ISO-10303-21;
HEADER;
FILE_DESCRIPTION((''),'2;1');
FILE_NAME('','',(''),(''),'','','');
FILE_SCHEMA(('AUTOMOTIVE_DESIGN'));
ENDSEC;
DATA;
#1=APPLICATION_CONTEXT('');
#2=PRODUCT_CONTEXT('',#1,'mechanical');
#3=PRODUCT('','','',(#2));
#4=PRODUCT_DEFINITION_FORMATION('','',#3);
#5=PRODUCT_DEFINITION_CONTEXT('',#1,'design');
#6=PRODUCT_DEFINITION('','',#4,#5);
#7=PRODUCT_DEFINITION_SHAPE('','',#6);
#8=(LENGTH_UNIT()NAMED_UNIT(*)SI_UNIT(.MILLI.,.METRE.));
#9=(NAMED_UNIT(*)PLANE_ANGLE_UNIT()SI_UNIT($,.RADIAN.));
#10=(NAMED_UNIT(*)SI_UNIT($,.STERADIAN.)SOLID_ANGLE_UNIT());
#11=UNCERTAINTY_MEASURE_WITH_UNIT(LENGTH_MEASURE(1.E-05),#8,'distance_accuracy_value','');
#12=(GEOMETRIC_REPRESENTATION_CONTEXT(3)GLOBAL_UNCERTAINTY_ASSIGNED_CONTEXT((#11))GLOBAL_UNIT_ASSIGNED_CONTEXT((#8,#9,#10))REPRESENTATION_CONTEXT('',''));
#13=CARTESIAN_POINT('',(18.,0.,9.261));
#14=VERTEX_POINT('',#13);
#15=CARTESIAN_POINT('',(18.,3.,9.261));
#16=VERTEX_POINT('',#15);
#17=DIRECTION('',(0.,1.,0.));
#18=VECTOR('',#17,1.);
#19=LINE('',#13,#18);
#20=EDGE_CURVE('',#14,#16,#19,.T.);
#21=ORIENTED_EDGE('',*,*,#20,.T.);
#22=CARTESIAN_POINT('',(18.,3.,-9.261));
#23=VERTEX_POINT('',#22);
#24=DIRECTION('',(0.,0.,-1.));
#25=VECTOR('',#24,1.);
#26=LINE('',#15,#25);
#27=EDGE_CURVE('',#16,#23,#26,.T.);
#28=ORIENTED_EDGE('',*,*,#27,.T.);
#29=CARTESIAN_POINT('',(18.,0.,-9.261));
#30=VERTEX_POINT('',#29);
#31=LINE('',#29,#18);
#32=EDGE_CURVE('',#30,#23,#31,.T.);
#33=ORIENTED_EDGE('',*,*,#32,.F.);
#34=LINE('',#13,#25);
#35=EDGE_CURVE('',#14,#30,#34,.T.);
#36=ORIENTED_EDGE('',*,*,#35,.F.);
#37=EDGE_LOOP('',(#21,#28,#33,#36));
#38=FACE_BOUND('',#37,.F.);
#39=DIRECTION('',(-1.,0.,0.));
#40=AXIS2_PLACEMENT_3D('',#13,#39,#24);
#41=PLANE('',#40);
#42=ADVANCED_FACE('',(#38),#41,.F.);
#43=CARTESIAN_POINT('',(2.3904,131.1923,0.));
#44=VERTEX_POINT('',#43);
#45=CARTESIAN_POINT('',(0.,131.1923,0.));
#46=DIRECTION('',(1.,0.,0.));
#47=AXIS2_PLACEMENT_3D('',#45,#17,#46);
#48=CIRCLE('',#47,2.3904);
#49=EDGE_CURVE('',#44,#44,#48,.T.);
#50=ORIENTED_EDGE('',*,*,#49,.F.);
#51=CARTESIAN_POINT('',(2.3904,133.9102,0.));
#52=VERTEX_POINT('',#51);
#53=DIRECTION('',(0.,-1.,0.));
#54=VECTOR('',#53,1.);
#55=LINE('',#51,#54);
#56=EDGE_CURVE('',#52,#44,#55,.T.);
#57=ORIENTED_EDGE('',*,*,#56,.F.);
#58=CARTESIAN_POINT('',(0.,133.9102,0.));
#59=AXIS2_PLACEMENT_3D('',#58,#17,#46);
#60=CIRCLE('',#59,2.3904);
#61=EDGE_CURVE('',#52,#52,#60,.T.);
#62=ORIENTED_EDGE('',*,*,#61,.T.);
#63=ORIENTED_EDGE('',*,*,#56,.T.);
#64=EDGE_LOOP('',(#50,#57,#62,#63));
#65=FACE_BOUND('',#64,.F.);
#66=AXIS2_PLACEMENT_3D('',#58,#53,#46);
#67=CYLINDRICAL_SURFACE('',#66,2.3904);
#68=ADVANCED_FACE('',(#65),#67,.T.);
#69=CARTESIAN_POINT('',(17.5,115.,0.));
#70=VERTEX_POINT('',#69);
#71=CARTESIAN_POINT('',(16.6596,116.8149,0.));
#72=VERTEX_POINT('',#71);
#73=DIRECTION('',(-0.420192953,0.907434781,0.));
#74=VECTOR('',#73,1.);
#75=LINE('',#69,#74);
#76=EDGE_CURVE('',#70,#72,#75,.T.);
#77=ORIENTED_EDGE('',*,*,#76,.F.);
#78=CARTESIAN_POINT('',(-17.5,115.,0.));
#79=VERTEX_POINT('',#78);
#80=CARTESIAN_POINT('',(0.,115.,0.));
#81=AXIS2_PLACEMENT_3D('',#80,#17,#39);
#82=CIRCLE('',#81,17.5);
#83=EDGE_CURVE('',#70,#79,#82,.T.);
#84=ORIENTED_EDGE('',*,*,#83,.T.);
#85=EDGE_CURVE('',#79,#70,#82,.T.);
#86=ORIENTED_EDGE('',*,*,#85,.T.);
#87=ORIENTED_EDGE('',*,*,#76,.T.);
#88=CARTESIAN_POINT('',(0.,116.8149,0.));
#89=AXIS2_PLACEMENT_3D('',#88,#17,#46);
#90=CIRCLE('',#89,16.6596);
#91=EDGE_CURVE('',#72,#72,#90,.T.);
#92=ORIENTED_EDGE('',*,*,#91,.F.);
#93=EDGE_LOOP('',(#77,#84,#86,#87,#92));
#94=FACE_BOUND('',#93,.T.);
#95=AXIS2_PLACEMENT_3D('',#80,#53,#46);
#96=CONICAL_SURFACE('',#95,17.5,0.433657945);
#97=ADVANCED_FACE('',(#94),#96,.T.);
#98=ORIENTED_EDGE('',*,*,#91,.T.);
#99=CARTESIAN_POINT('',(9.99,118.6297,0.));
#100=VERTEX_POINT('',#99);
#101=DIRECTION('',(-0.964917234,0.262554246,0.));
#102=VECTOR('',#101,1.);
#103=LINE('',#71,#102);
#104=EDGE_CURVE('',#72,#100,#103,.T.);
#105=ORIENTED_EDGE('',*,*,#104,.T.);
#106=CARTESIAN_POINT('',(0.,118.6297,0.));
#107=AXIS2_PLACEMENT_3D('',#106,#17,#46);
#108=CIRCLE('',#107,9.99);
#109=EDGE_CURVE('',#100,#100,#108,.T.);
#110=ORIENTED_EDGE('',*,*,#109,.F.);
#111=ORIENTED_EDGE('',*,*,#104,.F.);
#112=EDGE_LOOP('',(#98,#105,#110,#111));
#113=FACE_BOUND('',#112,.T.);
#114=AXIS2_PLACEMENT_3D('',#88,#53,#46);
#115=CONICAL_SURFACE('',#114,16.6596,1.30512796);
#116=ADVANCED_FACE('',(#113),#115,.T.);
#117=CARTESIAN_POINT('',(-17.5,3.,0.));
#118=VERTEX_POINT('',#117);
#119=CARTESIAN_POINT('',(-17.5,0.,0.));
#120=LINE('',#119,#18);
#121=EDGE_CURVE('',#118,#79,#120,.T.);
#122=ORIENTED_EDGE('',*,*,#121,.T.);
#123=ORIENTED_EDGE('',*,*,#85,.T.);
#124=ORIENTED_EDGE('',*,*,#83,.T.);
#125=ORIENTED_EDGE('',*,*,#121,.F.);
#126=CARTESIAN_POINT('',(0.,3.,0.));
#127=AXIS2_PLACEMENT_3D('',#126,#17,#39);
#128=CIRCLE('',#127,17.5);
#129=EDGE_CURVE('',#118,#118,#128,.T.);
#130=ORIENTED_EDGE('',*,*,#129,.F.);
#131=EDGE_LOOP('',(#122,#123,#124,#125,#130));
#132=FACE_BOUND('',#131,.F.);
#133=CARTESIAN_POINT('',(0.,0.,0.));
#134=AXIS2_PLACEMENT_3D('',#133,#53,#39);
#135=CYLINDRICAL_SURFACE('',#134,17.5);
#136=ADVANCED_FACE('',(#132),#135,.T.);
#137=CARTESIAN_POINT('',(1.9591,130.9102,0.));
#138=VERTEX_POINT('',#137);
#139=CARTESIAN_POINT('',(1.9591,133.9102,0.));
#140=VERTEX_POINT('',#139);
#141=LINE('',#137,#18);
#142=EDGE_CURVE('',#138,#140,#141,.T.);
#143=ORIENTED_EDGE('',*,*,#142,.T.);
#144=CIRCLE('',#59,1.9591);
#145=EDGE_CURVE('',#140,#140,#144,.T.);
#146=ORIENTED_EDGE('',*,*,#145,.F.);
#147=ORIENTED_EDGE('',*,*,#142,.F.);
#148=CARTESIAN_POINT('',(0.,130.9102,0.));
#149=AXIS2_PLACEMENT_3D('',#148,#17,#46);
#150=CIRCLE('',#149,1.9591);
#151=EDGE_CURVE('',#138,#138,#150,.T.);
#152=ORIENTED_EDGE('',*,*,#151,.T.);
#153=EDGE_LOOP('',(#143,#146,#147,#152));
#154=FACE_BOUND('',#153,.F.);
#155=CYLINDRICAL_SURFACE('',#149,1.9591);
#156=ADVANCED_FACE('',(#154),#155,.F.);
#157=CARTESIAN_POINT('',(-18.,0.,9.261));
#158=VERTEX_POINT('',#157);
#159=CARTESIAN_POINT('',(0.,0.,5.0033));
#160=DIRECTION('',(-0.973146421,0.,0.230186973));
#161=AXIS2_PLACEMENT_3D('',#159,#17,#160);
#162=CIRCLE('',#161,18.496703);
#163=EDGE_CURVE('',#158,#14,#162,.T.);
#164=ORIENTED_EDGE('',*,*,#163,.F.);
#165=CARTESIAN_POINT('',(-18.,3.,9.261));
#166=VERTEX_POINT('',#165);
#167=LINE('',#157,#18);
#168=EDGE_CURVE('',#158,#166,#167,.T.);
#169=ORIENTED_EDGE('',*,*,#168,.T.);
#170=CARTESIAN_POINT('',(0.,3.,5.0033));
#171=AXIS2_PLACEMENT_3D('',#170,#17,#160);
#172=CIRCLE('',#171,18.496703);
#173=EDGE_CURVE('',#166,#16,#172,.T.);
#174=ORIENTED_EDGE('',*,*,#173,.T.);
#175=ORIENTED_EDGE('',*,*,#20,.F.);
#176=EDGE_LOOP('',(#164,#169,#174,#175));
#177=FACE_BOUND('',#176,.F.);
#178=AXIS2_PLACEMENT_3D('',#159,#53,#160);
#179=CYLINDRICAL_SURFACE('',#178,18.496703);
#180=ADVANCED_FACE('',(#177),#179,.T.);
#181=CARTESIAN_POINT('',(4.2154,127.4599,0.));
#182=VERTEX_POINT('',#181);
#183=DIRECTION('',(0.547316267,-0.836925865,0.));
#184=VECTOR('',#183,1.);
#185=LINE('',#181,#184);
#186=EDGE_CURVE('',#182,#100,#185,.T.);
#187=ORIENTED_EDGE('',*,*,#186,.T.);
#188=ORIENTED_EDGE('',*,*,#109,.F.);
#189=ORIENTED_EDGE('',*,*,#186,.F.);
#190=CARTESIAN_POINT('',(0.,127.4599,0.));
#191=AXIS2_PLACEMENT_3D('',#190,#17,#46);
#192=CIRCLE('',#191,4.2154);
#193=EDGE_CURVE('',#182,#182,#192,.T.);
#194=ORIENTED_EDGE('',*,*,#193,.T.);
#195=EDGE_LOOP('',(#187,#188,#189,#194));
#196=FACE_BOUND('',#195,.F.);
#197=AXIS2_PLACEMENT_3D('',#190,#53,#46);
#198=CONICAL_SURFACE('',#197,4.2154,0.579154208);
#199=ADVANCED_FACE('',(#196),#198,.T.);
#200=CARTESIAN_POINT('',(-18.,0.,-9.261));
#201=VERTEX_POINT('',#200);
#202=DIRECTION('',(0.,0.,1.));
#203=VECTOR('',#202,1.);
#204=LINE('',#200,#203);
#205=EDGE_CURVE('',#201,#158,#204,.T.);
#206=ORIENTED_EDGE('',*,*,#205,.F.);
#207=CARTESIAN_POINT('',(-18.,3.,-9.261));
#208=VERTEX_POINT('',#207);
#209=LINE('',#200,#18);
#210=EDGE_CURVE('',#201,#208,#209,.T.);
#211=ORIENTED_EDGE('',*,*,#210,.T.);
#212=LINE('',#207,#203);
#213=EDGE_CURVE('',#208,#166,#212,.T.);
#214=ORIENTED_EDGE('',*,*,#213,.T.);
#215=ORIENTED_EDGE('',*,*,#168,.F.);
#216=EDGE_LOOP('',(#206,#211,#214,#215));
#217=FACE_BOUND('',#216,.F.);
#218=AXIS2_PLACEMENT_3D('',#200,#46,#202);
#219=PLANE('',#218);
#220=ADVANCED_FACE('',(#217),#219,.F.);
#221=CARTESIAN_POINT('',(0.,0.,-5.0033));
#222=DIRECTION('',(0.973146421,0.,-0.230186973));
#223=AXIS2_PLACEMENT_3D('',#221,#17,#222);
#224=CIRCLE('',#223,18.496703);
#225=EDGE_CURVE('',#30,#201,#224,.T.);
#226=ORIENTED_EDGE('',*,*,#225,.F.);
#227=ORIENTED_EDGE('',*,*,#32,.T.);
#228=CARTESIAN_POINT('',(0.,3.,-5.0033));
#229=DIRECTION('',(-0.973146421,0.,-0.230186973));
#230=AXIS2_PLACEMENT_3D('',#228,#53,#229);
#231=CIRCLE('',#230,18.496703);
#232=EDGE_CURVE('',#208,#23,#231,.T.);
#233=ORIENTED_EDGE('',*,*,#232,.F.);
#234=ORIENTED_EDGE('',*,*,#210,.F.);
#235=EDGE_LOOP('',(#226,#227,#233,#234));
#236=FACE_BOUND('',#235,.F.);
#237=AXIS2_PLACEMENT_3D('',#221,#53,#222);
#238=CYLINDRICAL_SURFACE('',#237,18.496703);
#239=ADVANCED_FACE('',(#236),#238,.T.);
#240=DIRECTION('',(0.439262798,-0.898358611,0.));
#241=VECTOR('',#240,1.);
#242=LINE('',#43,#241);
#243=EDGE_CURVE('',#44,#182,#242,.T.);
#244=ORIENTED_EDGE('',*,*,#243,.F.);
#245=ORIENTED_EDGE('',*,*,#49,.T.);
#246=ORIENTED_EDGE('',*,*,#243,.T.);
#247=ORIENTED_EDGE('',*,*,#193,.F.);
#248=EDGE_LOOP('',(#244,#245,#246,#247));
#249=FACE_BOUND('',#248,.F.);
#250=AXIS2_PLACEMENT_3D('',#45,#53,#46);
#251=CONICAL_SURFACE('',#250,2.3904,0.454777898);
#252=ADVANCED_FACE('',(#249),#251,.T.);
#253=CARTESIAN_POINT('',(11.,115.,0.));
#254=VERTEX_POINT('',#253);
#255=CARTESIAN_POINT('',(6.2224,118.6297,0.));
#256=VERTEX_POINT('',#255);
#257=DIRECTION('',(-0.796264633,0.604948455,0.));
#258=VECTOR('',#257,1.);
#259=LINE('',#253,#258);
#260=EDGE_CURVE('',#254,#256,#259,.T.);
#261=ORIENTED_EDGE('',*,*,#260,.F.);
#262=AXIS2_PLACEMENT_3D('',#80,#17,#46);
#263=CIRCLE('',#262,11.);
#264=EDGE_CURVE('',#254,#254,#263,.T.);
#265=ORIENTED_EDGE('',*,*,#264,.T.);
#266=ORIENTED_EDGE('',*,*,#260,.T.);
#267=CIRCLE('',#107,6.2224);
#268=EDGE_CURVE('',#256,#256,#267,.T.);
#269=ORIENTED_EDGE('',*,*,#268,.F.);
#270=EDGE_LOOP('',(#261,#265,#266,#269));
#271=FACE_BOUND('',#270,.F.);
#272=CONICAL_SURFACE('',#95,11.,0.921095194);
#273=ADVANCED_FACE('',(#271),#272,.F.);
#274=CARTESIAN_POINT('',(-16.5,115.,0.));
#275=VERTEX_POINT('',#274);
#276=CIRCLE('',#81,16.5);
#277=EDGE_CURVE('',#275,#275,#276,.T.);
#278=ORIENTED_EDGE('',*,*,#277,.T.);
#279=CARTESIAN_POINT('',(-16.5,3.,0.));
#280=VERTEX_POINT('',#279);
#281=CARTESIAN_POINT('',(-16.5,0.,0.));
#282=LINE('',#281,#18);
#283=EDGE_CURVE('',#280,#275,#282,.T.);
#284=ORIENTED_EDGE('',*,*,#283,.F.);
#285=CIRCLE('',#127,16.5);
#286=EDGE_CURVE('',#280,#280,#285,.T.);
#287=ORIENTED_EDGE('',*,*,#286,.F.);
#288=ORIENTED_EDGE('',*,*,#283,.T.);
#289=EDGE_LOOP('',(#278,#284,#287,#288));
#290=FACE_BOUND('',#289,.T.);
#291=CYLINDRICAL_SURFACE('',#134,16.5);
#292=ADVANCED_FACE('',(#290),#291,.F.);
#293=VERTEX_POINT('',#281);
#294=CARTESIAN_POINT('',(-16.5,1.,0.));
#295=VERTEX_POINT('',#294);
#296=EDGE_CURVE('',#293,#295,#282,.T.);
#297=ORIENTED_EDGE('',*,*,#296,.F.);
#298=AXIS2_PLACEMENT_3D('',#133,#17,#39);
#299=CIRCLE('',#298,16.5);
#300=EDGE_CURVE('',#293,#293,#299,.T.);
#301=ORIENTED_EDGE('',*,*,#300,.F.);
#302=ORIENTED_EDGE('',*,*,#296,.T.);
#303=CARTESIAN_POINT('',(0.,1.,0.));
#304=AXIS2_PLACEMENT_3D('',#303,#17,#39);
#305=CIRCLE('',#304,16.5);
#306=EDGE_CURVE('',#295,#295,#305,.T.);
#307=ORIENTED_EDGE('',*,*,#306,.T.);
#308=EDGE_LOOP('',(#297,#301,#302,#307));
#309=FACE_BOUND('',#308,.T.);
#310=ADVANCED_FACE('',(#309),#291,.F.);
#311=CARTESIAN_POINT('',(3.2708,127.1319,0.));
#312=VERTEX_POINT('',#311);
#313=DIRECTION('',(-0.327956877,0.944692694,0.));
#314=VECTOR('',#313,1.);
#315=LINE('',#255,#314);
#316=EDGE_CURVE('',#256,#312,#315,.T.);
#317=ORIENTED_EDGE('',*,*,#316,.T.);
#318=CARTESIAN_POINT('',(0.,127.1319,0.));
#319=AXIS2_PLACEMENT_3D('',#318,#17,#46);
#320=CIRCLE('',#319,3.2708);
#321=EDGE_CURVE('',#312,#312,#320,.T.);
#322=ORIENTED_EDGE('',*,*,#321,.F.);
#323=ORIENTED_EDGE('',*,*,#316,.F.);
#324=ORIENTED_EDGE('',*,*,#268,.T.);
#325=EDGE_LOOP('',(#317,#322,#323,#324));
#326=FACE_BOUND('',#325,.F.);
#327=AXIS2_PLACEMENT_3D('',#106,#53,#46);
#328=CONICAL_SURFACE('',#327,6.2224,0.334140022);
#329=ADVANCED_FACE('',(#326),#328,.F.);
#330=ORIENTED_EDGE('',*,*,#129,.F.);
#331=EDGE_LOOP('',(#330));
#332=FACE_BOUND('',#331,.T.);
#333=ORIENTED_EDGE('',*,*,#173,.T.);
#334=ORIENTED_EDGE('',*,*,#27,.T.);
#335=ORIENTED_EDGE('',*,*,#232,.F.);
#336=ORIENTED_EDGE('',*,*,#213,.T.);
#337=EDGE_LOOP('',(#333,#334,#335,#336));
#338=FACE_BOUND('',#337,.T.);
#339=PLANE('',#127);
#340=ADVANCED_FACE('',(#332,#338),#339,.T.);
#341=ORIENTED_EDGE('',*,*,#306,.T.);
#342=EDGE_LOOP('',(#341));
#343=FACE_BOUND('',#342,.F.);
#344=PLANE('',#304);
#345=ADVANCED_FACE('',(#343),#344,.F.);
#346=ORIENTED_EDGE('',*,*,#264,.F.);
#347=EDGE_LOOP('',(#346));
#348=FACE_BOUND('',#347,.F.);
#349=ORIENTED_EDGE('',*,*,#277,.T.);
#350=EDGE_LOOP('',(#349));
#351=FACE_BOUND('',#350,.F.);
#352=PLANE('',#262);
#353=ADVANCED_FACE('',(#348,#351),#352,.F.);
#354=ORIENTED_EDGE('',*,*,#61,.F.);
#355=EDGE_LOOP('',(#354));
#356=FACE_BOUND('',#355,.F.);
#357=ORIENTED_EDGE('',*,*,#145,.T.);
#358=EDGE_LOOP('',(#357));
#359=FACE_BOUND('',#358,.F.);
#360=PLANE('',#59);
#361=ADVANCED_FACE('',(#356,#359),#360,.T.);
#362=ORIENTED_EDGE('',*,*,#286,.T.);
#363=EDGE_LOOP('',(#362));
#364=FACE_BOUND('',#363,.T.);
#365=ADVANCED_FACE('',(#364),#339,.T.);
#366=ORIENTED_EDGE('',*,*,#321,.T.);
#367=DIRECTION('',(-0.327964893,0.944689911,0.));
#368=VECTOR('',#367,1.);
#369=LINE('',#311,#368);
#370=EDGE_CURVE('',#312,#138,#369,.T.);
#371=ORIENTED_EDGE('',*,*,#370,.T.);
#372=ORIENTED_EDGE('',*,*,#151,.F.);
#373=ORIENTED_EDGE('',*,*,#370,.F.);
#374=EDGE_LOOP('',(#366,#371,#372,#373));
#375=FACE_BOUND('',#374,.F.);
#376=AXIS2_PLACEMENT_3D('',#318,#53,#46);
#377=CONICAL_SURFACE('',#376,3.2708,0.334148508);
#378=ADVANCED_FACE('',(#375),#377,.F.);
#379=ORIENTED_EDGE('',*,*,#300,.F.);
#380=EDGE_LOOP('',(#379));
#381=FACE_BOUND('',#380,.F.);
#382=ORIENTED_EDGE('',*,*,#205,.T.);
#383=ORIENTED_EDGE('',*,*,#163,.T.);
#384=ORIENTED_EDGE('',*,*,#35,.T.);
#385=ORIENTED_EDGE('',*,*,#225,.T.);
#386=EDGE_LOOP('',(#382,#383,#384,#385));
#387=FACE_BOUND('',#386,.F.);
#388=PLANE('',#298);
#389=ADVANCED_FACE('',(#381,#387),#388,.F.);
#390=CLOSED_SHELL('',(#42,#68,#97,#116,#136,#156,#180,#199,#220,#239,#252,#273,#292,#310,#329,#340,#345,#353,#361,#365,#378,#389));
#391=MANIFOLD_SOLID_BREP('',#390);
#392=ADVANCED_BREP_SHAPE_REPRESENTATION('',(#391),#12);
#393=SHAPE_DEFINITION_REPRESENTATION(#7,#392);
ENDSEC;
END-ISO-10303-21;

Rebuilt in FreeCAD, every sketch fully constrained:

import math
import FreeCAD as App
import Part
import Sketcher


def add_polygon(sketch, points):
    """Adds a closed chain of lines whose ends are joined by coincident constraints."""
    first, n = sketch.GeometryCount, len(points)
    for a, b in zip(points, points[1:] + points[:1]):
        sketch.addGeometry(Part.LineSegment(App.Vector(*a, 0), App.Vector(*b, 0)), False)
    for i in range(n):
        sketch.addConstraint(Sketcher.Constraint("Coincident", first + i, 2, first + (i + 1) % n, 1))

doc = App.newDocument("Part")
body = doc.addObject("PartDesign::Body", "Body")

sketch1 = body.newObject("Sketcher::SketchObject", "Sketch")
sketch1.AttachmentSupport = (doc.getObject("XZ_Plane"), [""])
sketch1.MapMode = "FlatFace"
sketch1.addGeometry(Part.Circle(App.Vector(0, 0, 0), App.Vector(0, 0, 1), 17.5), False)
sketch1.addGeometry(Part.Circle(App.Vector(0, 0, 0), App.Vector(0, 0, 1), 16.5), False)
sketch1.addConstraint(Sketcher.Constraint("Coincident", 0, 3, -1, 1))
sketch1.addConstraint(Sketcher.Constraint("Coincident", 1, 3, -1, 1))
sketch1.addConstraint(Sketcher.Constraint("Diameter", 1, 33.0))
sketch1.addConstraint(Sketcher.Constraint("Diameter", 0, 35.0))
pad1 = body.newObject("PartDesign::Pad", "Pad")
pad1.Profile = sketch1
pad1.Length = 115
pad1.Reversed = True

sketch2 = body.newObject("Sketcher::SketchObject", "Sketch001")
sketch2.AttachmentSupport = (doc.getObject("XZ_Plane"), [""])
sketch2.MapMode = "FlatFace"
sketch2.addGeometry(Part.Circle(App.Vector(0, 0, 0), App.Vector(0, 0, 1), 16.5), False)
sketch2.addGeometry(Part.ArcOfCircle(Part.Circle(App.Vector(0, -5.0033, 0), App.Vector(0, 0, 1), 18.496703), math.radians(-166.69192), math.radians(-13.30808)), False)
sketch2.addGeometry(Part.LineSegment(App.Vector(-18, -9.261, 0), App.Vector(-18, 9.261, 0)), False)
sketch2.addGeometry(Part.ArcOfCircle(Part.Circle(App.Vector(0, 5.0033, 0), App.Vector(0, 0, 1), 18.496703), math.radians(13.30808), math.radians(166.69192)), False)
sketch2.addGeometry(Part.LineSegment(App.Vector(18, 9.261, 0), App.Vector(18, -9.261, 0)), False)
sketch2.addGeometry(Part.Circle(App.Vector(0, 0, 0), App.Vector(0, 0, 1), 17.5), False)
sketch2.addConstraint(Sketcher.Constraint("Coincident", 1, 1, 2, 1))
sketch2.addConstraint(Sketcher.Constraint("Coincident", 2, 2, 3, 2))
sketch2.addConstraint(Sketcher.Constraint("Coincident", 3, 1, 4, 1))
sketch2.addConstraint(Sketcher.Constraint("Coincident", 4, 2, 1, 2))
sketch2.addConstraint(Sketcher.Constraint("Vertical", 2))
sketch2.addConstraint(Sketcher.Constraint("Vertical", 4))
sketch2.addConstraint(Sketcher.Constraint("Coincident", 0, 3, -1, 1))
sketch2.addConstraint(Sketcher.Constraint("Coincident", 5, 3, -1, 1))
sketch2.addConstraint(Sketcher.Constraint("Equal", 1, 3))
sketch2.addConstraint(Sketcher.Constraint("Symmetric", 1, 3, 3, 3, -1, 1))
sketch2.addConstraint(Sketcher.Constraint("Symmetric", 2, 2, 3, 1, -2))
sketch2.addConstraint(Sketcher.Constraint("Diameter", 0, 33.0))
sketch2.addConstraint(Sketcher.Constraint("Diameter", 5, 35.0))
sketch2.addConstraint(Sketcher.Constraint("DistanceX", 2, 2, 3, 1, 36.0))
sketch2.addConstraint(Sketcher.Constraint("Radius", 1, 18.4967))
sketch2.addConstraint(Sketcher.Constraint("DistanceY", 2, 1, 2, 2, 18.522))
pad2 = body.newObject("PartDesign::Pad", "Pad001")
pad2.Profile = sketch2
pad2.Length = 3
pad2.Reversed = True

sketch3 = body.newObject("Sketcher::SketchObject", "Sketch002")
sketch3.AttachmentSupport = (doc.getObject("XY_Plane"), [""])
sketch3.MapMode = "FlatFace"
add_polygon(sketch3, [(11, 115), (17.5, 115), (16.6596, 116.8149), (9.99, 118.6297), (4.2154, 127.4599), (2.3904, 131.1923), (2.3904, 133.9102), (1.9591, 133.9102), (1.9591, 130.9102), (3.2708, 127.1319), (6.2224, 118.6297)])
sketch3.addConstraint(Sketcher.Constraint("Horizontal", 0))
sketch3.addConstraint(Sketcher.Constraint("Vertical", 5))
sketch3.addConstraint(Sketcher.Constraint("Horizontal", 6))
sketch3.addConstraint(Sketcher.Constraint("Vertical", 7))
sketch3.addConstraint(Sketcher.Constraint("DistanceY", 7, 2, 7, 1, 3.0))
sketch3.addConstraint(Sketcher.Constraint("Distance", 1, 2.0))
sketch3.addConstraint(Sketcher.Constraint("Distance", 9, 9.0))
sketch3.addConstraint(Sketcher.Constraint("Distance", 10, 6.0))
sketch3.addConstraint(Sketcher.Constraint("DistanceX", 0, 1, 0, 2, 6.5))
sketch3.addConstraint(Sketcher.Constraint("DistanceY", -1, 1, 0, 2, 115.0))
sketch3.addConstraint(Sketcher.Constraint("DistanceX", -1, 1, 10, 2, 11.0))
sketch3.addConstraint(Sketcher.Constraint("DistanceY", 5, 1, 5, 2, 2.718))
sketch3.addConstraint(Sketcher.Constraint("DistanceX", -1, 1, 2, 2, 9.99))
sketch3.addConstraint(Sketcher.Constraint("DistanceY", -1, 1, 3, 2, 127.46))
sketch3.addConstraint(Sketcher.Constraint("Distance", 2, 6.912))
sketch3.addConstraint(Sketcher.Constraint("DistanceX", 6, 2, 6, 1, 0.4313))
sketch3.addConstraint(Sketcher.Constraint("DistanceY", -1, 1, 1, 2, 116.815))
sketch3.addConstraint(Sketcher.Constraint("DistanceX", -1, 1, 6, 2, 1.959))
sketch3.addConstraint(Sketcher.Constraint("DistanceY", -1, 1, 8, 2, 127.132))
sketch3.addConstraint(Sketcher.Constraint("DistanceX", 4, 2, 3, 2, 1.825))
sketch3.addConstraint(Sketcher.Constraint("DistanceX", 3, 2, 9, 2, 2.007))
sketch3.addConstraint(Sketcher.Constraint("Distance", 4, 4.1547))
revolution = body.newObject("PartDesign::Revolution", "Revolution")
revolution.Profile = sketch3
revolution.ReferenceAxis = (sketch3, ["V_Axis"])
revolution.Angle = 360

sketch4 = body.newObject("Sketcher::SketchObject", "Sketch003")
sketch4.AttachmentSupport = (doc.getObject("XZ_Plane"), [""])
sketch4.MapMode = "FlatFace"
sketch4.addGeometry(Part.Circle(App.Vector(0, 0, 0), App.Vector(0, 0, 1), 16.5), False)
sketch4.addConstraint(Sketcher.Constraint("Coincident", 0, 3, -1, 1))
sketch4.addConstraint(Sketcher.Constraint("Diameter", 0, 33.0))
pocket1 = body.newObject("PartDesign::Pocket", "Pocket")
pocket1.Profile = sketch4
pocket1.Length = 1

doc.recompute()
